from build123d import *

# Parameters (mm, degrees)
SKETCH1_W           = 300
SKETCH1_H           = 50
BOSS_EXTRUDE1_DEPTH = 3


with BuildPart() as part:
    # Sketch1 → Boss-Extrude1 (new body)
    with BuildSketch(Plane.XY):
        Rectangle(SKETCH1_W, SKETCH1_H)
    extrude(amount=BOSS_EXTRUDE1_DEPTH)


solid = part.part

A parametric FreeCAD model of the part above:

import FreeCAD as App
import Part
import Sketcher
from FreeCAD import Vector
Q = App.Units.Quantity


def add_polygon(sketch, points):
    """Adds a closed chain of lines whose ends are joined by coincident constraints."""
    first, n = sketch.GeometryCount, len(points)
    for a, b in zip(points, points[1:] + points[:1]):
        sketch.addGeometry(Part.LineSegment(App.Vector(*a, 0), App.Vector(*b, 0)), False)
    for i in range(n):
        sketch.addConstraint(Sketcher.Constraint("Coincident", first + i, 2, first + (i + 1) % n, 1))

doc = App.newDocument("Part")
body = doc.addObject("PartDesign::Body", "Body")

# Sketch on XY plane
sketch1 = doc.addObject("Sketcher::SketchObject", "Sketch")
body.addObject(sketch1)
sketch1.AttachmentSupport = (doc.XY_Plane, [""])
sketch1.MapMode = "FlatFace"
add_polygon(sketch1, [(-150, 25), (-150, -25), (150, -25), (150, 25)])  # lines 0-3
sketch1.addConstraint([
    Sketcher.Constraint("Vertical", 0),
    Sketcher.Constraint("Horizontal", 1),
    Sketcher.Constraint("Vertical", 2),
    Sketcher.Constraint("Horizontal", 3),
    Sketcher.Constraint("Symmetric", 0, 2, 2, 2, -1, 1),
    Sketcher.Constraint("DistanceX", 1, 1, 1, 2, Q("300 mm")),
    Sketcher.Constraint("DistanceY", 0, 2, 0, 1, Q("50 mm")),
])
pad1 = doc.addObject("PartDesign::Pad", "Pad")
body.addObject(pad1)
pad1.Profile = sketch1
pad1.Length = 3

doc.recompute()
